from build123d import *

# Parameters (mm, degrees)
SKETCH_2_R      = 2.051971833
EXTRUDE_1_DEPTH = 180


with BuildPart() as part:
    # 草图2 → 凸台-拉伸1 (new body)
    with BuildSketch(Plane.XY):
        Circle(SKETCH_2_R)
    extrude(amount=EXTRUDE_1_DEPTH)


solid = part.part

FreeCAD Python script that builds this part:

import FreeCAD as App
import Part
import Sketcher

doc = App.newDocument("Part")
body = doc.addObject("PartDesign::Body", "Body")

# Sketch on XY plane
sketch1 = body.newObject("Sketcher::SketchObject", "Sketch")
sketch1.AttachmentSupport = (doc.getObject("XY_Plane"), [""])
sketch1.MapMode = "FlatFace"
sketch1.addGeometry(Part.Circle(App.Vector(0, 0, 0), App.Vector(0, 0, 1), 2.1), False)
sketch1.addConstraint([
    Sketcher.Constraint("Coincident", 0, 3, -1, 1),
    Sketcher.Constraint("Diameter", 0, 4.103944),
])
pad1 = body.newObject("PartDesign::Pad", "Pad")
pad1.Profile = sketch1
pad1.Length = 180

doc.recompute()
